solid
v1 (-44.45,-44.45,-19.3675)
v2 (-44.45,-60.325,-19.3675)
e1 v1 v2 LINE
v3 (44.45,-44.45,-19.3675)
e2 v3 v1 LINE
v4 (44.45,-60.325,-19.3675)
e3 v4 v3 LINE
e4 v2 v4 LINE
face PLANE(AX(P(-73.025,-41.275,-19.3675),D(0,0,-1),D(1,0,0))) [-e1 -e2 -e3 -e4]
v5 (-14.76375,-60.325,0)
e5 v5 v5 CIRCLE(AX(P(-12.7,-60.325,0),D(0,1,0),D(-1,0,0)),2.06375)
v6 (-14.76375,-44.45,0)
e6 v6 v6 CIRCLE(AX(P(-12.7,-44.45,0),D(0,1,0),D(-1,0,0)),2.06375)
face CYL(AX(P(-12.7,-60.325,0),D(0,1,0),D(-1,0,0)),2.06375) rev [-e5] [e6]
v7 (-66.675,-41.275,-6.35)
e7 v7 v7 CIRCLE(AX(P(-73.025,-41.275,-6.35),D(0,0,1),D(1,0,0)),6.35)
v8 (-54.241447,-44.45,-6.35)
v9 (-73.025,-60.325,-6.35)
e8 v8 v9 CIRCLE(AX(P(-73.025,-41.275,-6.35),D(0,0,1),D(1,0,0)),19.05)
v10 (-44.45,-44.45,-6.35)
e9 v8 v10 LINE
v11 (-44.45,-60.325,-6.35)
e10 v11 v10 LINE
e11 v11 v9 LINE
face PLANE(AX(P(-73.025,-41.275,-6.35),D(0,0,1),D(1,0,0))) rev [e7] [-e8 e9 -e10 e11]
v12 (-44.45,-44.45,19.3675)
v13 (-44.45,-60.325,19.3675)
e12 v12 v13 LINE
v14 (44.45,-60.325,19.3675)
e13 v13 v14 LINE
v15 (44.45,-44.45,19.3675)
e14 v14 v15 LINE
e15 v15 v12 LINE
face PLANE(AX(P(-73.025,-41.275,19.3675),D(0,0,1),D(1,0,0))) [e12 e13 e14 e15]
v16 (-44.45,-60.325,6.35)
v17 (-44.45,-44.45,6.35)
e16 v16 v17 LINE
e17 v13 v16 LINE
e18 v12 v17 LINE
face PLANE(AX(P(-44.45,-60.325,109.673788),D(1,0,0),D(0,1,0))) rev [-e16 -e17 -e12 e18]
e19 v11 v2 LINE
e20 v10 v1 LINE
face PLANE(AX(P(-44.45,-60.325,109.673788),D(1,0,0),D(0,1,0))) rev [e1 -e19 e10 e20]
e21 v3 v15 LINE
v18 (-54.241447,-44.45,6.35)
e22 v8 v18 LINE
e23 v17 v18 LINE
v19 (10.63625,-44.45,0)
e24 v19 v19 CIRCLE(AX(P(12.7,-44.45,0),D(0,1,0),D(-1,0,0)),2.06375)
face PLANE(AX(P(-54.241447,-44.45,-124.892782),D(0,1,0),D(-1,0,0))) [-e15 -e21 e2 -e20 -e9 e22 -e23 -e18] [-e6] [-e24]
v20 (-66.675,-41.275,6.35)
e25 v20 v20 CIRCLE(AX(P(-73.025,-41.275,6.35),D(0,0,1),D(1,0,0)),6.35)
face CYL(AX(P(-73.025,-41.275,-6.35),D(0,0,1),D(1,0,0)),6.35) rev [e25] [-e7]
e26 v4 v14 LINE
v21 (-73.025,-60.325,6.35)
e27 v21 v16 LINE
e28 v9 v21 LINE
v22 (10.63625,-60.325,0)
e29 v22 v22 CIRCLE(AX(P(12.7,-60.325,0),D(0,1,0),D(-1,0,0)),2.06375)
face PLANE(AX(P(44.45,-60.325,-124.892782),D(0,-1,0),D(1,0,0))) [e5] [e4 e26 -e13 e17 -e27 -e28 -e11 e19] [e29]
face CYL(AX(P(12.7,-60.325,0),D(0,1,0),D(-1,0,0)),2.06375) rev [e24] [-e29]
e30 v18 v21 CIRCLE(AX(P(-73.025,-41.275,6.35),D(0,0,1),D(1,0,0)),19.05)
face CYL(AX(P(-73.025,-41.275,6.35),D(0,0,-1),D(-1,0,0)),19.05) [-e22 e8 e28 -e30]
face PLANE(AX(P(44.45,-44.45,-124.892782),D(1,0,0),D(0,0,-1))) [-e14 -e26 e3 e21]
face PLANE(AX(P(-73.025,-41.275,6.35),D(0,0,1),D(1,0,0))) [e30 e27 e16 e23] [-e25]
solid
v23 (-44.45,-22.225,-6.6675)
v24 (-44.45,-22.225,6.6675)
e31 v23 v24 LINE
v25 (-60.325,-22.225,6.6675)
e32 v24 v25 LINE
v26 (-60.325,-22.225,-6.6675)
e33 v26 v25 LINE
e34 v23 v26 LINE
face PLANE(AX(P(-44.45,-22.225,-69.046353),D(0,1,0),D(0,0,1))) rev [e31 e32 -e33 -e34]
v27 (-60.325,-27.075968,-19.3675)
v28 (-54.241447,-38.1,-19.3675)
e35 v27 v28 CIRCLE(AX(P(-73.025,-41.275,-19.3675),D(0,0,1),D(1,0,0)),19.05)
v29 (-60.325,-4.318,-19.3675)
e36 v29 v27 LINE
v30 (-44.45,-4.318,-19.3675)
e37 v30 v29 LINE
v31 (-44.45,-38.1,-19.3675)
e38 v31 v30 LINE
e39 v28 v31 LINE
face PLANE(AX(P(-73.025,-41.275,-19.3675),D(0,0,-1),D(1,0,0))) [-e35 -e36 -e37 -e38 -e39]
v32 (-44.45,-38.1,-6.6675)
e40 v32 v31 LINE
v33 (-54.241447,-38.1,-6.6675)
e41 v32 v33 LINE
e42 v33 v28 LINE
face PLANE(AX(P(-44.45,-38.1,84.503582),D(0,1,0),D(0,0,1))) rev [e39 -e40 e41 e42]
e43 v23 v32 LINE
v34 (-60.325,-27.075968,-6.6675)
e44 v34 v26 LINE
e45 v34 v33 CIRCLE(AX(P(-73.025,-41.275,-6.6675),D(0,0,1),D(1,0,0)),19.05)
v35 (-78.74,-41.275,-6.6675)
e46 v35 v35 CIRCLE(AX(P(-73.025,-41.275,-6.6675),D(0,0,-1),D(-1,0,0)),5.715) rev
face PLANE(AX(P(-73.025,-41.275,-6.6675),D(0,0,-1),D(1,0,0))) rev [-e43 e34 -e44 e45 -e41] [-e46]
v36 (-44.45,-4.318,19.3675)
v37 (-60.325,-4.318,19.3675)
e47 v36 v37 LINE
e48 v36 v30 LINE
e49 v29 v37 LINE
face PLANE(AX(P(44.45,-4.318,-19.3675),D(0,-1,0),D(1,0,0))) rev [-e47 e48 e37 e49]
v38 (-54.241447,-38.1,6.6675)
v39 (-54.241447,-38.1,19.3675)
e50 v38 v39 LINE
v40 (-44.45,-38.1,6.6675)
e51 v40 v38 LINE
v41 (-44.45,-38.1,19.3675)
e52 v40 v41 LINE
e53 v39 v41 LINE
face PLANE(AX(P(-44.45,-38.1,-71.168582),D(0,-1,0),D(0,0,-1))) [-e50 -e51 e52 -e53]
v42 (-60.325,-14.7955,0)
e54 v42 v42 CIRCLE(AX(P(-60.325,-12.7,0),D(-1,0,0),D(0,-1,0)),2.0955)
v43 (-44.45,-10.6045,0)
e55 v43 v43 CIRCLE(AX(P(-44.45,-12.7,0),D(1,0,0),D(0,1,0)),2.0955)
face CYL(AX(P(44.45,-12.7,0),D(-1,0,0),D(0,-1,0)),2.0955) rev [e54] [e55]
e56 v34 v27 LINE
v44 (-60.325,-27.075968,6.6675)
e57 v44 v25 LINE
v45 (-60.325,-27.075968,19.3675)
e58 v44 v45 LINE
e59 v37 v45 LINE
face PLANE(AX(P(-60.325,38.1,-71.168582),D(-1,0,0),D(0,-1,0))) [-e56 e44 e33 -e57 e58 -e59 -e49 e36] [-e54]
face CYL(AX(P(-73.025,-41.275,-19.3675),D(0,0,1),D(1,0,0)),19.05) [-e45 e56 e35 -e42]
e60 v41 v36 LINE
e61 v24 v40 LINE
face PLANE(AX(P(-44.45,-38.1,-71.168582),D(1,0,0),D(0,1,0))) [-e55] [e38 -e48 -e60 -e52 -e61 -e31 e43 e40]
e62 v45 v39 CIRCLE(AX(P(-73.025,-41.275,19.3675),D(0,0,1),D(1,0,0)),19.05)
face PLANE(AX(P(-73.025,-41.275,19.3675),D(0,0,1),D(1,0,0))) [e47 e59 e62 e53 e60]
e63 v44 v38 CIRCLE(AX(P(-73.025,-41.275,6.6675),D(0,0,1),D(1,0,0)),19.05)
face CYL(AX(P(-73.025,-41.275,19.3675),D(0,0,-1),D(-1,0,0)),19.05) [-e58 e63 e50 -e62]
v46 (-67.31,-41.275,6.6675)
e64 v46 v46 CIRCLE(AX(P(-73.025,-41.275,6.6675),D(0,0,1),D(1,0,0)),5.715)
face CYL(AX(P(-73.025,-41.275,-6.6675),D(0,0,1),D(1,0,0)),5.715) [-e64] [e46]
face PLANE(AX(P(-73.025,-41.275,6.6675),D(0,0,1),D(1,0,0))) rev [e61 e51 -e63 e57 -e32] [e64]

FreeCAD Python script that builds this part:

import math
import FreeCAD as App
import Part
import Sketcher

V = App.Vector
Q = App.Units.Quantity


def add_polygon(sketch, points):
    """Adds a closed chain of lines whose ends are joined by coincident constraints."""
    first, n = sketch.GeometryCount, len(points)
    for a, b in zip(points, points[1:] + points[:1]):
        sketch.addGeometry(Part.LineSegment(App.Vector(*a, 0), App.Vector(*b, 0)), False)
    for i in range(n):
        sketch.addConstraint(Sketcher.Constraint("Coincident", first + i, 2, first + (i + 1) % n, 1))

doc = App.newDocument("Part")
params = doc.addObject("Spreadsheet::Sheet", "Params")
for row, (alias, value) in enumerate([
    ("sketch1_diameter", "1.5 in"),
    ("pad1_length", "0.5 in"),
    ("sketch2_radius", "0.75 in"),
    ("sketch2_width", "4.625 in"),
    ("sketch2_height", "0.625 in"),
    ("pad2_length", "0.5 in"),
    ("sketch3_diameter", "0.5 in"),
    ("sketch4_width", "3.5 in"),
    ("sketch4_height", "0.625 in"),
    ("pad3_length", "1.525 in"),
    ("sketch6_diameter", "0.45 in"),
    ("pad4_length", "0.525 in"),
    ("sketch7_diameter", "1.5 in"),
    ("pad5_length", "0.5 in"),
    ("sketch8_height", "3 in"),
    ("sketch8_radius", "0.75 in"),
    ("sketch8_width", "0.625 in"),
    ("pad6_length", "0.5 in"),
    ("sketch9_width", "0.625 in"),
    ("sketch9_height", "2.375 in"),
    ("sketch10_diameter", "0.165 in"),
    ("sketch11_width", "1.67 in"),
    ("sketch11_height", "1.525 in"),
], start=1):
    params.set(f"A{row}", alias)
    params.set(f"B{row}", "=" + value)
    params.setAlias(f"B{row}", alias)

body = doc.addObject("PartDesign::Body", "Body")

# Sketch on XY plane
sketch1 = doc.addObject("Sketcher::SketchObject", "Sketch")
body.addObject(sketch1)
sketch1.AttachmentSupport = (doc.XY_Plane, [""])
sketch1.MapMode = "FlatFace"
sketch1.addGeometry(Part.Circle(V(-73, -41, 0), V(0, 0, 1), 19), False)
sketch1.addConstraint([
    Sketcher.Constraint("Diameter", 0, Q("1.5 in")),
    Sketcher.Constraint("DistanceX", 0, 3, -1, 1, Q("2.875 in")),
    Sketcher.Constraint("DistanceY", 0, 3, -1, 1, Q("1.625 in")),
])
sketch1.setExpression("Constraints[0]", "Params.sketch1_diameter")
pad1 = doc.addObject("PartDesign::Pad", "Pad")
body.addObject(pad1)
pad1.Profile = sketch1
pad1.setExpression("Length", "Params.pad1_length")
pad1.Midplane = True

# Sketch on XY plane
sketch2 = doc.addObject("Sketcher::SketchObject", "Sketch001")
body.addObject(sketch2)
sketch2.AttachmentSupport = (doc.XY_Plane, [""])
sketch2.MapMode = "FlatFace"
sketch2.AttachmentOffset = App.Placement(V(0, 0, 0.25 * 25.4), App.Rotation())
sketch2.addGeometry([
    Part.LineSegment(V(44, -44, 0), V(-54, -44, 0)),
    Part.ArcOfCircle(Part.Circle(V(-73, -41, 0), V(0, 0, 1), 19), math.radians(-90), math.radians(-10)),
    Part.LineSegment(V(-73, -60, 0), V(44, -60, 0)),
    Part.LineSegment(V(44, -60, 0), V(44, -44, 0)),
], False)
sketch2.addConstraint([
    Sketcher.Constraint("Coincident", 0, 2, 1, 2),
    Sketcher.Constraint("Tangent", 1, 1, 2, 1),
    Sketcher.Constraint("Coincident", 2, 2, 3, 1),
    Sketcher.Constraint("Coincident", 3, 2, 0, 1),
    Sketcher.Constraint("Horizontal", 0),
    Sketcher.Constraint("Horizontal", 2),
    Sketcher.Constraint("Vertical", 3),
    Sketcher.Constraint("Radius", 1, Q("0.75 in")),
    Sketcher.Constraint("DistanceX", 2, 1, 2, 2, Q("4.625 in")),
    Sketcher.Constraint("DistanceY", 3, 1, 3, 2, Q("0.625 in")),
    Sketcher.Constraint("DistanceY", 0, 2, -1, 1, Q("1.75 in")),
    Sketcher.Constraint("DistanceX", -1, 1, 2, 2, Q("1.75 in")),
])
sketch2.setExpression("Constraints[7]", "Params.sketch2_radius")
sketch2.setExpression("Constraints[8]", "Params.sketch2_width")
sketch2.setExpression("Constraints[9]", "Params.sketch2_height")
pad2 = doc.addObject("PartDesign::Pad", "Pad001")
body.addObject(pad2)
pad2.Profile = sketch2
pad2.setExpression("Length", "Params.pad2_length")
pad2.Reversed = True

# Sketch on XY plane
sketch3 = doc.addObject("Sketcher::SketchObject", "Sketch002")
body.addObject(sketch3)
sketch3.AttachmentSupport = (doc.XY_Plane, [""])
sketch3.MapMode = "FlatFace"
sketch3.AttachmentOffset = App.Placement(V(0, 0, 0.25 * 25.4), App.Rotation())
sketch3.addGeometry(Part.Circle(V(-73, -41, 0), V(0, 0, 1), 6), False)
sketch3.addConstraint([
    Sketcher.Constraint("Diameter", 0, Q("0.5 in")),
    Sketcher.Constraint("DistanceX", 0, 3, -1, 1, Q("2.875 in")),
    Sketcher.Constraint("DistanceY", 0, 3, -1, 1, Q("1.625 in")),
])
sketch3.setExpression("Constraints[0]", "Params.sketch3_diameter")
pocket1 = doc.addObject("PartDesign::Pocket", "Pocket")
body.addObject(pocket1)
pocket1.Profile = sketch3
pocket1.Type = "ThroughAll"

# Sketch on XY plane
sketch4 = doc.addObject("Sketcher::SketchObject", "Sketch003")
body.addObject(sketch4)
sketch4.AttachmentSupport = (doc.XY_Plane, [""])
sketch4.MapMode = "FlatFace"
sketch4.AttachmentOffset = App.Placement(V(0, 0, -0.7625 * 25.4), App.Rotation())
add_polygon(sketch4, [(-44, -44), (-44, -60), (44, -60), (44, -44)])  # lines 0-3
sketch4.addConstraint([
    Sketcher.Constraint("Vertical", 0),
    Sketcher.Constraint("Horizontal", 1),
    Sketcher.Constraint("Vertical", 2),
    Sketcher.Constraint("Horizontal", 3),
    Sketcher.Constraint("DistanceX", 1, 1, 1, 2, Q("3.5 in")),
    Sketcher.Constraint("DistanceY", 0, 2, 0, 1, Q("0.625 in")),
    Sketcher.Constraint("DistanceX", 0, 2, -1, 1, Q("1.75 in")),
    Sketcher.Constraint("DistanceY", 2, 2, -1, 1, Q("1.75 in")),
])
sketch4.setExpression("Constraints[8]", "Params.sketch4_width")
sketch4.setExpression("Constraints[9]", "Params.sketch4_height")
pad3 = doc.addObject("PartDesign::Pad", "Pad002")
body.addObject(pad3)
pad3.Profile = sketch4
pad3.setExpression("Length", "Params.pad3_length")

# Sketch on XZ plane
sketch5 = doc.addObject("Sketcher::SketchObject", "Sketch004")
body.addObject(sketch5)
sketch5.AttachmentSupport = (doc.XZ_Plane, [""])
sketch5.MapMode = "FlatFace"
sketch5.AttachmentOffset = App.Placement(V(0, 0, 1.75 * 25.4), App.Rotation())
sketch5.addGeometry([
    Part.Circle(V(-12.7, 0, 0), V(0, 0, 1), 2.1),
    Part.Circle(V(12.7, 0, 0), V(0, 0, 1), 2.1),
], False)
sketch5.addConstraint([
    Sketcher.Constraint("Equal", 0, 1),
    Sketcher.Constraint("Symmetric", 0, 3, 1, 3, -1, 1),
    Sketcher.Constraint("PointOnObject", 0, 3, -1),
    Sketcher.Constraint("DistanceX", 0, 3, 1, 3, Q("1 in")),
    Sketcher.Constraint("Diameter", 0, Q("0.1625 in")),
])
pocket2 = doc.addObject("PartDesign::Pocket", "Pocket001")
body.addObject(pocket2)
pocket2.Profile = sketch5
pocket2.Type = "ThroughAll"
pocket2.Reversed = True
body2 = doc.addObject("PartDesign::Body", "Body001")

# Sketch on XY plane
sketch6 = doc.addObject("Sketcher::SketchObject", "Sketch005")
body2.addObject(sketch6)
sketch6.AttachmentSupport = (doc.getObject("XY_Plane001"), [""])
sketch6.MapMode = "FlatFace"
sketch6.addGeometry(Part.Circle(V(-73, -41, 0), V(0, 0, 1), 6), False)
sketch6.addConstraint([
    Sketcher.Constraint("Diameter", 0, Q("0.45 in")),
    Sketcher.Constraint("DistanceX", 0, 3, -1, 1, Q("2.875 in")),
    Sketcher.Constraint("DistanceY", 0, 3, -1, 1, Q("1.625 in")),
])
sketch6.setExpression("Constraints[0]", "Params.sketch6_diameter")
pad4 = doc.addObject("PartDesign::Pad", "Pad003")
body2.addObject(pad4)
pad4.Profile = sketch6
pad4.setExpression("Length", "Params.pad4_length")
pad4.Midplane = True

# Sketch on XY plane
sketch7 = doc.addObject("Sketcher::SketchObject", "Sketch006")
body2.addObject(sketch7)
sketch7.AttachmentSupport = (doc.getObject("XY_Plane001"), [""])
sketch7.MapMode = "FlatFace"
sketch7.AttachmentOffset = App.Placement(V(0, 0, 0.7625 * 25.4), App.Rotation())
sketch7.addGeometry(Part.Circle(V(-73, -41, 0), V(0, 0, 1), 19), False)
sketch7.addConstraint([
    Sketcher.Constraint("Diameter", 0, Q("1.5 in")),
    Sketcher.Constraint("DistanceX", 0, 3, -1, 1, Q("2.875 in")),
    Sketcher.Constraint("DistanceY", 0, 3, -1, 1, Q("1.625 in")),
])
sketch7.setExpression("Constraints[0]", "Params.sketch7_diameter")
pad5 = doc.addObject("PartDesign::Pad", "Pad004")
body2.addObject(pad5)
pad5.Profile = sketch7
pad5.setExpression("Length", "Params.pad5_length")
pad5.Reversed = True

# Sketch on XY plane
sketch8 = doc.addObject("Sketcher::SketchObject", "Sketch007")
body2.addObject(sketch8)
sketch8.AttachmentSupport = (doc.getObject("XY_Plane001"), [""])
sketch8.MapMode = "FlatFace"
sketch8.AttachmentOffset = App.Placement(V(0, 0, 0.7625 * 25.4), App.Rotation())
sketch8.addGeometry([
    Part.LineSegment(V(-44, -38, 0), V(-44, 38, 0)),  # 0
    Part.LineSegment(V(-44, 38, 0), V(-60, 38, 0)),  # 1
    Part.LineSegment(V(-60, 38, 0), V(-60, -27, 0)),  # 2
    Part.ArcOfCircle(Part.Circle(V(-73, -41, 0), V(0, 0, 1), 19), math.radians(10), math.radians(48)),  # 3
    Part.LineSegment(V(-54, -38, 0), V(-44, -38, 0)),  # 4
], False)
sketch8.addConstraint([
    Sketcher.Constraint("Coincident", 0, 2, 1, 1),
    Sketcher.Constraint("Coincident", 1, 2, 2, 1),
    Sketcher.Constraint("Coincident", 2, 2, 3, 2),
    Sketcher.Constraint("Coincident", 3, 1, 4, 1),
    Sketcher.Constraint("Coincident", 4, 2, 0, 1),
    Sketcher.Constraint("Vertical", 0),
    Sketcher.Constraint("Horizontal", 1),
    Sketcher.Constraint("Vertical", 2),
    Sketcher.Constraint("Horizontal", 4),
    Sketcher.Constraint("DistanceY", 0, 1, 0, 2, Q("3 in")),
    Sketcher.Constraint("Radius", 3, Q("0.75 in")),
    Sketcher.Constraint("DistanceY", -1, 1, 0, 2, Q("1.5 in")),
    Sketcher.Constraint("DistanceX", 3, 3, 1, 2, Q("0.5 in")),
    Sketcher.Constraint("DistanceX", 1, 2, 1, 1, Q("0.625 in")),
    Sketcher.Constraint("DistanceX", 0, 2, -1, 1, Q("1.75 in")),
    Sketcher.Constraint("DistanceY", 3, 3, -1, 1, Q("1.625 in")),
])
sketch8.setExpression("Constraints[9]", "Params.sketch8_height")
sketch8.setExpression("Constraints[10]", "Params.sketch8_radius")
sketch8.setExpression("Constraints[13]", "Params.sketch8_width")
pad6 = doc.addObject("PartDesign::Pad", "Pad005")
body2.addObject(pad6)
pad6.Profile = sketch8
pad6.setExpression("Length", "Params.pad6_length")
pad6.Reversed = True
doc.recompute()

mirrored = doc.addObject("PartDesign::Mirrored", "Mirrored")
body2.addObject(mirrored)
mirrored.Originals = [pad5, pad6]
mirrored.MirrorPlane = (doc.getObject("XY_Plane001"), [""])
body2.Tip = mirrored

# Sketch on XY plane
sketch9 = doc.addObject("Sketcher::SketchObject", "Sketch008")
body2.addObject(sketch9)
sketch9.AttachmentSupport = (doc.getObject("XY_Plane001"), [""])
sketch9.MapMode = "FlatFace"
sketch9.AttachmentOffset = App.Placement(V(0, 0, 0.2625 * 25.4), App.Rotation())
add_polygon(sketch9, [(-44, 38), (-44, -22), (-60, -22), (-60, 38)])  # lines 0-3
sketch9.addConstraint([
    Sketcher.Constraint("Vertical", 0),
    Sketcher.Constraint("Horizontal", 1),
    Sketcher.Constraint("Vertical", 2),
    Sketcher.Constraint("Horizontal", 3),
    Sketcher.Constraint("DistanceY", -1, 1, 2, 2, Q("1.5 in")),
    Sketcher.Constraint("DistanceX", 1, 2, 1, 1, Q("0.625 in")),
    Sketcher.Constraint("DistanceY", 0, 2, 0, 1, Q("2.375 in")),
    Sketcher.Constraint("DistanceX", 0, 2, -1, 1, Q("1.75 in")),
])
sketch9.setExpression("Constraints[9]", "Params.sketch9_width")
sketch9.setExpression("Constraints[10]", "Params.sketch9_height")
pad7 = doc.addObject("PartDesign::Pad", "Pad006")
body2.addObject(pad7)
pad7.Profile = sketch9
pad7.Type = "UpToFirst"
pad7.Reversed = True

# Sketch on YZ plane
sketch10 = doc.addObject("Sketcher::SketchObject", "Sketch009")
body2.addObject(sketch10)
sketch10.AttachmentSupport = (doc.getObject("YZ_Plane001"), [""])
sketch10.MapMode = "FlatFace"
sketch10.AttachmentOffset = App.Placement(V(0, 0, -2.375 * 25.4), App.Rotation())
sketch10.addGeometry([
    Part.Circle(V(12.7, 0, 0), V(0, 0, 1), 2.1),
    Part.Circle(V(-12.7, 0, 0), V(0, 0, 1), 2.1),
], False)
sketch10.addConstraint([
    Sketcher.Constraint("Equal", 0, 1),
    Sketcher.Constraint("Symmetric", 0, 3, 1, 3, -1, 1),
    Sketcher.Constraint("PointOnObject", 0, 3, -1),
    Sketcher.Constraint("Diameter", 0, Q("0.165 in")),
    Sketcher.Constraint("DistanceX", 1, 3, 0, 3, Q("1 in")),
])
sketch10.setExpression("Constraints[3]", "Params.sketch10_diameter")
pocket3 = doc.addObject("PartDesign::Pocket", "Pocket002")
body2.addObject(pocket3)
pocket3.Profile = sketch10
pocket3.Type = "ThroughAll"
pocket3.Reversed = True

# Sketch on YZ plane
sketch11 = doc.addObject("Sketcher::SketchObject", "Sketch010")
body2.addObject(sketch11)
sketch11.AttachmentSupport = (doc.getObject("YZ_Plane001"), [""])
sketch11.MapMode = "FlatFace"
sketch11.AttachmentOffset = App.Placement(V(0, 0, -2.375 * 25.4), App.Rotation())
add_polygon(sketch11, [(38, -19), (-4, -19), (-4, 19), (38, 19)])  # lines 0-3
sketch11.addConstraint([
    Sketcher.Constraint("Horizontal", 0),
    Sketcher.Constraint("Vertical", 1),
    Sketcher.Constraint("Horizontal", 2),
    Sketcher.Constraint("Vertical", 3),
    Sketcher.Constraint("DistanceX", 0, 2, 0, 1, Q("1.67 in")),
    Sketcher.Constraint("DistanceX", -1, 1, 2, 2, Q("1.5 in")),
    Sketcher.Constraint("DistanceY", 1, 1, 1, 2, Q("1.525 in")),
    Sketcher.Constraint("DistanceY", 0, 2, -1, 1, Q("0.7625 in")),
])
sketch11.setExpression("Constraints[8]", "Params.sketch11_width")
sketch11.setExpression("Constraints[10]", "Params.sketch11_height")
pocket4 = doc.addObject("PartDesign::Pocket", "Pocket003")
body2.addObject(pocket4)
pocket4.Profile = sketch11
pocket4.Type = "ThroughAll"
pocket4.Reversed = True

doc.recompute()
